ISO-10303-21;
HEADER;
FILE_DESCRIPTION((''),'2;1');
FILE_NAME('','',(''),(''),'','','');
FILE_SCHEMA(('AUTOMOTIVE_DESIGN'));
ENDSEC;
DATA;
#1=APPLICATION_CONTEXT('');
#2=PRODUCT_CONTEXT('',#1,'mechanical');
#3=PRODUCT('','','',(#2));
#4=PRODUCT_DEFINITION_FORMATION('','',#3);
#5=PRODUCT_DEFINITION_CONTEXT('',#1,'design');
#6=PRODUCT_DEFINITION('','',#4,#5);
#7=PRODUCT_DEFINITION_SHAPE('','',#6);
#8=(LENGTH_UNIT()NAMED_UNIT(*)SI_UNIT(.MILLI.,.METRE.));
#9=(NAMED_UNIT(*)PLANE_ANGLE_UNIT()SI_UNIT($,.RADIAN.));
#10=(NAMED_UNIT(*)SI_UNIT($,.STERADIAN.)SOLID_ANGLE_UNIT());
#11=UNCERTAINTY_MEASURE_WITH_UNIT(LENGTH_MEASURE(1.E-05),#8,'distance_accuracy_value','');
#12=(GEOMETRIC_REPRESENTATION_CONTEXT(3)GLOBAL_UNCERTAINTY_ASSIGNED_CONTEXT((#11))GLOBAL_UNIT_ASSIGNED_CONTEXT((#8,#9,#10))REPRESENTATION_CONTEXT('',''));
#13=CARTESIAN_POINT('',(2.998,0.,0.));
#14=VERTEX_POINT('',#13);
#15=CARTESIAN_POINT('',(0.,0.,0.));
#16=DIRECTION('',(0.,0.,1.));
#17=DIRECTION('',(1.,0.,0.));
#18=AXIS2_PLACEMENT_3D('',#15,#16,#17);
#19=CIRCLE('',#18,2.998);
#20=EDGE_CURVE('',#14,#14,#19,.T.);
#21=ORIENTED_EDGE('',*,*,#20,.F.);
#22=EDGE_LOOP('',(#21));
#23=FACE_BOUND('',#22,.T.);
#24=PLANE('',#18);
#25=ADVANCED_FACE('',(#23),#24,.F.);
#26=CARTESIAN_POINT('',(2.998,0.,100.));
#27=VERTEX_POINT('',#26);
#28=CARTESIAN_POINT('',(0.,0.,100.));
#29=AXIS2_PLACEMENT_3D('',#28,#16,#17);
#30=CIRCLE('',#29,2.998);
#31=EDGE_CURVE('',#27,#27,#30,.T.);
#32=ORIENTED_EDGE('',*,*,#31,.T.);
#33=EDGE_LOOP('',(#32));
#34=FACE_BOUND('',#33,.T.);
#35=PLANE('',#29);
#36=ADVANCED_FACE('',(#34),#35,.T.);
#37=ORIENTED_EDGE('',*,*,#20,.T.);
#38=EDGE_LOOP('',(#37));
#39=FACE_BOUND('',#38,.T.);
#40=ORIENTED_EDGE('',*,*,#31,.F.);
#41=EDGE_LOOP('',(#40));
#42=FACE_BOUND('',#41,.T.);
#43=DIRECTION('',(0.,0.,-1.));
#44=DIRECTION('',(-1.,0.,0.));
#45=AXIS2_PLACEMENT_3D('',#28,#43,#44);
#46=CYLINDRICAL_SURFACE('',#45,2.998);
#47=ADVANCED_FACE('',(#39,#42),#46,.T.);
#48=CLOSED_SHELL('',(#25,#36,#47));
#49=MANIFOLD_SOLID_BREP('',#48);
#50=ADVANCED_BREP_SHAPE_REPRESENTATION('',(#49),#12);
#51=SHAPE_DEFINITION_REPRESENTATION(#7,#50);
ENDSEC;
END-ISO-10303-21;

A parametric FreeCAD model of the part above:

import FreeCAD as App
import Part
import Sketcher
from FreeCAD import Vector
Q = App.Units.Quantity

doc = App.newDocument("Part")
body = doc.addObject("PartDesign::Body", "Body")

# Sketch on XY plane
sketch1 = doc.addObject("Sketcher::SketchObject", "Sketch")
body.addObject(sketch1)
sketch1.AttachmentSupport = (doc.XY_Plane, [""])
sketch1.MapMode = "FlatFace"
sketch1.addGeometry(Part.Circle(Vector(0, 0, 0), Vector(0, 0, 1), 3), False)
sketch1.addConstraint(Sketcher.Constraint("Coincident", 0, 3, -1, 1))
sketch1.addConstraint(Sketcher.Constraint("Diameter", 0, Q("5.996 mm")))
pad1 = doc.addObject("PartDesign::Pad", "Pad")
body.addObject(pad1)
pad1.Profile = sketch1
pad1.Length = 100

doc.recompute()
